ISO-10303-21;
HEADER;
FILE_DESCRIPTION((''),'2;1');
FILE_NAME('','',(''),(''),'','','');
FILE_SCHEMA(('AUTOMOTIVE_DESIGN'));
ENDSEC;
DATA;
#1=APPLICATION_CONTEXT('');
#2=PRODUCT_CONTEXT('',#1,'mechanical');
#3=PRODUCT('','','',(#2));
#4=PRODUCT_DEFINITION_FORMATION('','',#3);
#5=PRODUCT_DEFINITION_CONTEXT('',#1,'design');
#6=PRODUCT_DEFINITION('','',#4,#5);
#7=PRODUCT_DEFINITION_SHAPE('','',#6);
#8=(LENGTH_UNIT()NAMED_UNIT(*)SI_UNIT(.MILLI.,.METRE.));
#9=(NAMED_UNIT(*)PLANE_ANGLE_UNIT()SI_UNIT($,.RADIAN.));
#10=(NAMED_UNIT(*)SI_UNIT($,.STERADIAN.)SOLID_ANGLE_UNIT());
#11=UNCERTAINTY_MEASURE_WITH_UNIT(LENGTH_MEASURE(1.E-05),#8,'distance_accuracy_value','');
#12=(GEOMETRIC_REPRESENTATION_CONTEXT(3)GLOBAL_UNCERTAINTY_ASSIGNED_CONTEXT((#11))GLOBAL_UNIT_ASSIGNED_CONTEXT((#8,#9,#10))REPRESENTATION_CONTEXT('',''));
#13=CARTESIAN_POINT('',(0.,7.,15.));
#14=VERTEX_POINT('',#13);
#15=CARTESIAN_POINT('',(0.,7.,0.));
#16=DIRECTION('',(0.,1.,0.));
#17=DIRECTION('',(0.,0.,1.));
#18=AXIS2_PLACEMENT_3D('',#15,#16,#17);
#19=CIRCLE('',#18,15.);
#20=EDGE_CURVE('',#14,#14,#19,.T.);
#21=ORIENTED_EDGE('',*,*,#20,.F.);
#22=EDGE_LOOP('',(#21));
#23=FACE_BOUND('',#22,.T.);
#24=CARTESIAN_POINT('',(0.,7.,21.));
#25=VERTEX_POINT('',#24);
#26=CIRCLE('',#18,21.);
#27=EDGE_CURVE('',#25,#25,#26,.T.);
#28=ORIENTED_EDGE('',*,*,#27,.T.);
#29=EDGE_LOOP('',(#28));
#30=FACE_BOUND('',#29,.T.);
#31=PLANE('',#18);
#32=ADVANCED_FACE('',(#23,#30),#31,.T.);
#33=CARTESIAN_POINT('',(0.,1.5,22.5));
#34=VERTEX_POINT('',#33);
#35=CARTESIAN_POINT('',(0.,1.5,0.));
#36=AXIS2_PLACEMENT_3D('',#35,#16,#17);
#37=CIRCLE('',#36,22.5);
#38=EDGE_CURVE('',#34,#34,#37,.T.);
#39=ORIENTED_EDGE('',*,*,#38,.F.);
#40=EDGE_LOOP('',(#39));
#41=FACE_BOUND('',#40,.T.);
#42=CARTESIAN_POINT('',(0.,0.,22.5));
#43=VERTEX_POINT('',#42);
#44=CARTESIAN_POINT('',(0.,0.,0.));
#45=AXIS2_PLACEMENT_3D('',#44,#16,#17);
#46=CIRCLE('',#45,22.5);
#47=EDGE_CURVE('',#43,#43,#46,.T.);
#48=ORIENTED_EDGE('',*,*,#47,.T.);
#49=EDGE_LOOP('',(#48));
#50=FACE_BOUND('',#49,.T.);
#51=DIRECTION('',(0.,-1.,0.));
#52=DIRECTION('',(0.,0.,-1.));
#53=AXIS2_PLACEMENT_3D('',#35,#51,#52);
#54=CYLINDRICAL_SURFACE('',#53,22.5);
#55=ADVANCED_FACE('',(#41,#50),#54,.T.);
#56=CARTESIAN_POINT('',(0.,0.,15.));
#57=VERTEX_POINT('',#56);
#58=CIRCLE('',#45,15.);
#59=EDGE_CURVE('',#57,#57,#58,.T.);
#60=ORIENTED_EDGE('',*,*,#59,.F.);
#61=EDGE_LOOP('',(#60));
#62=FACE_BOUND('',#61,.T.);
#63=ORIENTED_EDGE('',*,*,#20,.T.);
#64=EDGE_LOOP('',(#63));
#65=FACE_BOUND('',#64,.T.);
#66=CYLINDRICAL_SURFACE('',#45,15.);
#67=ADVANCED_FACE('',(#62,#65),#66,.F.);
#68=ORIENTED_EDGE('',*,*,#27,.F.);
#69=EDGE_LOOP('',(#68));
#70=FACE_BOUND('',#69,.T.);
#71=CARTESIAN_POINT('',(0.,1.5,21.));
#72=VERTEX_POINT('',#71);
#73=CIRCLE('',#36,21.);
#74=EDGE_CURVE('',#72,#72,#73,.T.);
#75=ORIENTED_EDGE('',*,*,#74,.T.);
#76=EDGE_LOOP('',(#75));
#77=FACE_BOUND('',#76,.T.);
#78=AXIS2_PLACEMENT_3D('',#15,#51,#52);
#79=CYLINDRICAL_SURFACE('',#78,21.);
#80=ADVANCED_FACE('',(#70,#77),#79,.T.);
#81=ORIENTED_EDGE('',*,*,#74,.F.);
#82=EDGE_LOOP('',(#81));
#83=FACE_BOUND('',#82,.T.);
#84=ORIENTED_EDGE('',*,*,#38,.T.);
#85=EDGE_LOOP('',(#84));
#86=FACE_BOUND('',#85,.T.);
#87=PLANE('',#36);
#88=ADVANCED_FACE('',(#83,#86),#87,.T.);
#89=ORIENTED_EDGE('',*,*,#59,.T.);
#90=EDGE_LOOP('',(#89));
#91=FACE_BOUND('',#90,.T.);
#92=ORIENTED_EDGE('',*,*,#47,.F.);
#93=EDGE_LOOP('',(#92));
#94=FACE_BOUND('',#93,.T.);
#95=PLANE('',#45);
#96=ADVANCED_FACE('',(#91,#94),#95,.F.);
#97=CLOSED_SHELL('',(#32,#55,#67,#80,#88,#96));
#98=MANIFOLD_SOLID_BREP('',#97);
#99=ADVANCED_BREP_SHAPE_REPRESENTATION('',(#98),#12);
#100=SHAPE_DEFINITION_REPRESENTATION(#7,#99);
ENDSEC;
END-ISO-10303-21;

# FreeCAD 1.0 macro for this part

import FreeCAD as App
import Part
import Sketcher

doc = App.newDocument("Part")
params = doc.addObject("Spreadsheet::Sheet", "Params")
for row, (alias, value) in enumerate([
    ("sketch1_diameter", "45 mm"),
    ("pad1_length", "1.5 mm"),
    ("sketch2_diameter", "42 mm"),
    ("pad2_length", "5.5 mm"),
    ("sketch3_diameter", "30 mm"),
], start=1):
    params.set(f"A{row}", alias)
    params.set(f"B{row}", "=" + value)
    params.setAlias(f"B{row}", alias)

body = doc.addObject("PartDesign::Body", "Body")

sketch1 = body.newObject("Sketcher::SketchObject", "Sketch")
sketch1.AttachmentSupport = (doc.getObject("XZ_Plane"), [""])
sketch1.MapMode = "FlatFace"
sketch1.addGeometry(Part.Circle(App.Vector(0, 0, 0), App.Vector(0, 0, 1), 22), False)
sketch1.addConstraint(Sketcher.Constraint("Coincident", 0, 3, -1, 1))
sketch1.addConstraint(Sketcher.Constraint("Diameter", 0, 45.0))
sketch1.setExpression("Constraints[1]", "Params.sketch1_diameter")
pad1 = body.newObject("PartDesign::Pad", "Pad")
pad1.Profile = sketch1
pad1.setExpression("Length", "Params.pad1_length")
pad1.Reversed = True

sketch2 = body.newObject("Sketcher::SketchObject", "Sketch001")
sketch2.AttachmentSupport = (doc.getObject("XZ_Plane"), [""])
sketch2.MapMode = "FlatFace"
sketch2.AttachmentOffset = App.Placement(App.Vector(0, 0, -1.5), App.Rotation())
sketch2.addGeometry(Part.Circle(App.Vector(0, 0, 0), App.Vector(0, 0, 1), 21), False)
sketch2.addConstraint(Sketcher.Constraint("Coincident", 0, 3, -1, 1))
sketch2.addConstraint(Sketcher.Constraint("Diameter", 0, 42.0))
sketch2.setExpression("Constraints[1]", "Params.sketch2_diameter")
pad2 = body.newObject("PartDesign::Pad", "Pad001")
pad2.Profile = sketch2
pad2.setExpression("Length", "Params.pad2_length")
pad2.Reversed = True

sketch3 = body.newObject("Sketcher::SketchObject", "Sketch002")
sketch3.AttachmentSupport = (doc.getObject("XZ_Plane"), [""])
sketch3.MapMode = "FlatFace"
sketch3.AttachmentOffset = App.Placement(App.Vector(0, 0, -7), App.Rotation())
sketch3.addGeometry(Part.Circle(App.Vector(0, 0, 0), App.Vector(0, 0, 1), 15), False)
sketch3.addConstraint(Sketcher.Constraint("Coincident", 0, 3, -1, 1))
sketch3.addConstraint(Sketcher.Constraint("Diameter", 0, 30.0))
sketch3.setExpression("Constraints[1]", "Params.sketch3_diameter")
pocket1 = body.newObject("PartDesign::Pocket", "Pocket")
pocket1.Profile = sketch3
pocket1.Type = "ThroughAll"
pocket1.Reversed = True

doc.recompute()
